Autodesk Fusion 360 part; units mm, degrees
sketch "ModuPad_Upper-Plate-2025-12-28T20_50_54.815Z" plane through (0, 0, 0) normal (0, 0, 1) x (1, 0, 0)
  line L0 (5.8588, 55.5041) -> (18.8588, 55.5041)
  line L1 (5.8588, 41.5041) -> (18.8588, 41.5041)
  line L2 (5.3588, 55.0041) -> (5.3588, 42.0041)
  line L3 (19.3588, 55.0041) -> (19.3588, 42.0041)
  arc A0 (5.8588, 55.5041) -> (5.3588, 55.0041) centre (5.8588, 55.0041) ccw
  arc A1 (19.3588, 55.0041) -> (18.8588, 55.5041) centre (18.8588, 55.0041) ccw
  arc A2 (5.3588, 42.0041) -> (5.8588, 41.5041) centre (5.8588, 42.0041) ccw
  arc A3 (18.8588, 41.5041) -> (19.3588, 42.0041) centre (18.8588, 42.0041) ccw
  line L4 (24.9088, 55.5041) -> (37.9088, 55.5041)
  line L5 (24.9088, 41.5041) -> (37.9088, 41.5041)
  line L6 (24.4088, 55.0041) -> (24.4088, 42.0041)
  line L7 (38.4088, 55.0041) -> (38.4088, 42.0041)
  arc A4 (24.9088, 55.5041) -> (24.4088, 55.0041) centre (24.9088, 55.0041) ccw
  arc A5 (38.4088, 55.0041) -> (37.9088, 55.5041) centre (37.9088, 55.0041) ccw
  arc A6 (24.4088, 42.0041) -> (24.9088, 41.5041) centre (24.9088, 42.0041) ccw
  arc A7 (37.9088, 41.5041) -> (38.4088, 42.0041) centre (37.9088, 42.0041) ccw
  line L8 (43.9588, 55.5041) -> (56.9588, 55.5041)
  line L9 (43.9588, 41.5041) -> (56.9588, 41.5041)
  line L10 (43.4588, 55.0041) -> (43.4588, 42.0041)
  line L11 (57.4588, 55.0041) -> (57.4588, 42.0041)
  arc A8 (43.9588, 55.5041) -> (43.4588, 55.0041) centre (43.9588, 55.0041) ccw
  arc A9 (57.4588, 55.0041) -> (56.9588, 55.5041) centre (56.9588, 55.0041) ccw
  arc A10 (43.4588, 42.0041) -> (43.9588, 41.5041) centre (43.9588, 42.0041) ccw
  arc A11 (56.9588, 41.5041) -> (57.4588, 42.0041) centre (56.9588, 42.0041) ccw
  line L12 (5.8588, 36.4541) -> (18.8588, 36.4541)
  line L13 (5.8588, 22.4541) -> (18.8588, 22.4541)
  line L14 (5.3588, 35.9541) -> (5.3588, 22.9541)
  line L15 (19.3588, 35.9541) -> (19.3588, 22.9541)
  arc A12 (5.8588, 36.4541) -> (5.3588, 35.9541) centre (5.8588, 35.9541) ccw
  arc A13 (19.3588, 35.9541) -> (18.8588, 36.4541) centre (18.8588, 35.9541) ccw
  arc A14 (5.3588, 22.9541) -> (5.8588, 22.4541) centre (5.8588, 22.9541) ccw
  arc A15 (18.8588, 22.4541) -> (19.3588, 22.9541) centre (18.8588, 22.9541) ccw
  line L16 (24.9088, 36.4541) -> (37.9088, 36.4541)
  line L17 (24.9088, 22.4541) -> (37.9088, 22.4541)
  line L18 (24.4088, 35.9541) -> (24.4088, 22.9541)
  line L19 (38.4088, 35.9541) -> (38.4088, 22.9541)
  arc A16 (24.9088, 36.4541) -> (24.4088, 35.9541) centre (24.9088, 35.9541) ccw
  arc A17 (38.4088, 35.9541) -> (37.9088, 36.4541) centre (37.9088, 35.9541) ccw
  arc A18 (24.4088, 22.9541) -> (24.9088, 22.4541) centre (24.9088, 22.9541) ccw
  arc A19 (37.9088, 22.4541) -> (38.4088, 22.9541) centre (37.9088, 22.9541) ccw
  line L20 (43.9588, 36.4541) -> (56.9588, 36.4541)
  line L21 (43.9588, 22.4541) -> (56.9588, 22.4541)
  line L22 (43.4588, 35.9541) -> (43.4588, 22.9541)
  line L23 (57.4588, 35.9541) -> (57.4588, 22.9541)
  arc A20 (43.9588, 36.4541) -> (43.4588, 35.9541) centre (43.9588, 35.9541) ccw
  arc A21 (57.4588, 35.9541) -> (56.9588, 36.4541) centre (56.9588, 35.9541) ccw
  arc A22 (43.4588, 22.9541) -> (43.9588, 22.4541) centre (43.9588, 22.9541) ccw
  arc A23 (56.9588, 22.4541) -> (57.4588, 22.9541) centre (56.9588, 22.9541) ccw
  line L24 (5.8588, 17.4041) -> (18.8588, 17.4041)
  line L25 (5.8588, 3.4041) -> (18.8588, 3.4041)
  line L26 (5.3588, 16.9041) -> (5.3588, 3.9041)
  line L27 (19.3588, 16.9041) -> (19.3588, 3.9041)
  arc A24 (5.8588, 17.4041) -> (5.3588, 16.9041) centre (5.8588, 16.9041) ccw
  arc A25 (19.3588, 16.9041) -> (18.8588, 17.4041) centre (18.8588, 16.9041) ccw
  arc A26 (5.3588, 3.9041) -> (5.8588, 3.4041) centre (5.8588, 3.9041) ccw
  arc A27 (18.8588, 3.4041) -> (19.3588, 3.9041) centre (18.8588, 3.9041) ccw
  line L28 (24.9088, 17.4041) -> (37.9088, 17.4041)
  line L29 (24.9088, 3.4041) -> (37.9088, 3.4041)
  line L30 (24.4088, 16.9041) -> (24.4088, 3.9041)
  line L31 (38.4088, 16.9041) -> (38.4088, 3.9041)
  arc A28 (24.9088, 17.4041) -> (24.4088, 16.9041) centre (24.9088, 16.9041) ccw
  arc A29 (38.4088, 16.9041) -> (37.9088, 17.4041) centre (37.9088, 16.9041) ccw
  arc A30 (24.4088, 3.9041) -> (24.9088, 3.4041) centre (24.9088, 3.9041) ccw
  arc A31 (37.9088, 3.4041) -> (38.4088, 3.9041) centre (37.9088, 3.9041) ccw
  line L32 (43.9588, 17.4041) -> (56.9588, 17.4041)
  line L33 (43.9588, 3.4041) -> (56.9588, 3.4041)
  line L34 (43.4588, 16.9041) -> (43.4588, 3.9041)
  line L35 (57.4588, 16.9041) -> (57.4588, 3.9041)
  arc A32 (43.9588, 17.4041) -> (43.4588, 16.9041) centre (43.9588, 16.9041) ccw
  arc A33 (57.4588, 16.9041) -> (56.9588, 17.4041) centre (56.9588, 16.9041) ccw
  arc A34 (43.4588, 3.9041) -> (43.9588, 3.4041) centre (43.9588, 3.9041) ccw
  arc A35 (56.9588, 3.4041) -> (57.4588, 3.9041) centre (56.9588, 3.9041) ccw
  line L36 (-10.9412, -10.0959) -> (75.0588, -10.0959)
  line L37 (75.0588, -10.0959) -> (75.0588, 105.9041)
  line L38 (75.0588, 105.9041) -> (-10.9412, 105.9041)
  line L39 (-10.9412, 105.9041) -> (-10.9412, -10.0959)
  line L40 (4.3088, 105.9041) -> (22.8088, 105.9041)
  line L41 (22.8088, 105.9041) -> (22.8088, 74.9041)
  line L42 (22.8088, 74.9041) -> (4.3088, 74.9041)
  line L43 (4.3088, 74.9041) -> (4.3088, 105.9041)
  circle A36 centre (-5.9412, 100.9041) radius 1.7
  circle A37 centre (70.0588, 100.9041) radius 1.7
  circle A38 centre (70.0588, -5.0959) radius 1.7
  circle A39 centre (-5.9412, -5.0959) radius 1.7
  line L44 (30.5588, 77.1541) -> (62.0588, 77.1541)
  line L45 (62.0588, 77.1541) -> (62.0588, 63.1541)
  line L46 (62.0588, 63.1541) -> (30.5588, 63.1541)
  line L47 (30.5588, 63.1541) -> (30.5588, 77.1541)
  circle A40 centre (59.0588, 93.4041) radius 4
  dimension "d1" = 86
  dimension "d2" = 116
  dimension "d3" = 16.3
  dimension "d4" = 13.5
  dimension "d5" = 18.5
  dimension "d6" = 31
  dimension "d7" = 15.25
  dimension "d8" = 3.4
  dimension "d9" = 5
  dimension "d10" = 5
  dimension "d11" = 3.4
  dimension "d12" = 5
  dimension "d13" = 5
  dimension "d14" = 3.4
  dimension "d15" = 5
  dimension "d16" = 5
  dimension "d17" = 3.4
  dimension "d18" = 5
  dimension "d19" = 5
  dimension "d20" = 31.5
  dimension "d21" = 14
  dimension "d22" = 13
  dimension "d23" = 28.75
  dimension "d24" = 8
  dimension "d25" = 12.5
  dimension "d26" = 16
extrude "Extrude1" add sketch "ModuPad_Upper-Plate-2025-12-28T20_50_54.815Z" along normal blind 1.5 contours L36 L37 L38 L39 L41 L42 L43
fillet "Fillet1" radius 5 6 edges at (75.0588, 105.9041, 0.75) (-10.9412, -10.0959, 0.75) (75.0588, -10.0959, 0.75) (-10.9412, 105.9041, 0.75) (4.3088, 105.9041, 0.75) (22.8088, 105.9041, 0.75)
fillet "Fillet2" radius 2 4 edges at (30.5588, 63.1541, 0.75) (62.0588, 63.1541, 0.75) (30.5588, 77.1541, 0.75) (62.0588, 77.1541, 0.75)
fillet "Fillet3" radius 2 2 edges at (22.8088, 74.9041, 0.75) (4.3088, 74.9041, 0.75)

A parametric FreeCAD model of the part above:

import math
import FreeCAD as App
import Part
import Sketcher
Q = App.Units.Quantity


def edges_at(feature, points):
    """Names of the edges that pass closest to the given points."""
    edges = feature.Shape.Edges
    near = lambda p: min(range(len(edges)), key=lambda i: edges[i].distToShape(Part.Vertex(*p))[0])
    return sorted({f"Edge{near(p) + 1}" for p in points})

doc = App.newDocument("Part")
body = doc.addObject("PartDesign::Body", "Body")

sketch1 = body.newObject("Sketcher::SketchObject", "Sketch")
sketch1.AttachmentSupport = (doc.getObject("XY_Plane"), [""])
sketch1.MapMode = "FlatFace"
sketch1.addGeometry([
    Part.LineSegment(App.Vector(-10.9412, 105.9041, 0), App.Vector(-10.9412, -10.0959, 0)),
    Part.LineSegment(App.Vector(-10.9412, -10.0959, 0), App.Vector(75.0588, -10.0959, 0)),
    Part.LineSegment(App.Vector(75.0588, -10.0959, 0), App.Vector(75.0588, 105.9041, 0)),
    Part.LineSegment(App.Vector(75.0588, 105.9041, 0), App.Vector(22.8088, 105.9041, 0)),
    Part.LineSegment(App.Vector(22.8088, 105.9041, 0), App.Vector(22.8088, 74.9041, 0)),
    Part.LineSegment(App.Vector(22.8088, 74.9041, 0), App.Vector(4.3088, 74.9041, 0)),
    Part.LineSegment(App.Vector(4.3088, 74.9041, 0), App.Vector(4.3088, 105.9041, 0)),
    Part.LineSegment(App.Vector(4.3088, 105.9041, 0), App.Vector(-10.9412, 105.9041, 0)),
    Part.Circle(App.Vector(-5.9412, -5.0959, 0), App.Vector(0, 0, 1), 1.7),
    Part.ArcOfCircle(Part.Circle(App.Vector(5.8588, 16.9041, 0), App.Vector(0, 0, 1), 0.5), math.radians(90), math.radians(180)),
    Part.LineSegment(App.Vector(5.8588, 17.4041, 0), App.Vector(18.8588, 17.4041, 0)),
    Part.ArcOfCircle(Part.Circle(App.Vector(18.8588, 16.9041, 0), App.Vector(0, 0, 1), 0.5), math.radians(0), math.radians(90)),
    Part.LineSegment(App.Vector(19.3588, 16.9041, 0), App.Vector(19.3588, 3.9041, 0)),
    Part.ArcOfCircle(Part.Circle(App.Vector(18.8588, 3.9041, 0), App.Vector(0, 0, 1), 0.5), math.radians(-90), math.radians(0)),
    Part.LineSegment(App.Vector(18.8588, 3.4041, 0), App.Vector(5.8588, 3.4041, 0)),
    Part.ArcOfCircle(Part.Circle(App.Vector(5.8588, 3.9041, 0), App.Vector(0, 0, 1), 0.5), math.radians(180), math.radians(270)),
    Part.LineSegment(App.Vector(5.3588, 3.9041, 0), App.Vector(5.3588, 16.9041, 0)),
    Part.ArcOfCircle(Part.Circle(App.Vector(24.9088, 16.9041, 0), App.Vector(0, 0, 1), 0.5), math.radians(90), math.radians(180)),
    Part.LineSegment(App.Vector(24.9088, 17.4041, 0), App.Vector(37.9088, 17.4041, 0)),
    Part.ArcOfCircle(Part.Circle(App.Vector(37.9088, 16.9041, 0), App.Vector(0, 0, 1), 0.5), math.radians(0), math.radians(90)),
    Part.LineSegment(App.Vector(38.4088, 16.9041, 0), App.Vector(38.4088, 3.9041, 0)),
    Part.ArcOfCircle(Part.Circle(App.Vector(37.9088, 3.9041, 0), App.Vector(0, 0, 1), 0.5), math.radians(-90), math.radians(0)),
    Part.LineSegment(App.Vector(37.9088, 3.4041, 0), App.Vector(24.9088, 3.4041, 0)),
    Part.ArcOfCircle(Part.Circle(App.Vector(24.9088, 3.9041, 0), App.Vector(0, 0, 1), 0.5), math.radians(180), math.radians(270)),
    Part.LineSegment(App.Vector(24.4088, 3.9041, 0), App.Vector(24.4088, 16.9041, 0)),
    Part.ArcOfCircle(Part.Circle(App.Vector(5.8588, 35.9541, 0), App.Vector(0, 0, 1), 0.5), math.radians(90), math.radians(180)),
    Part.LineSegment(App.Vector(5.8588, 36.4541, 0), App.Vector(18.8588, 36.4541, 0)),
    Part.ArcOfCircle(Part.Circle(App.Vector(18.8588, 35.9541, 0), App.Vector(0, 0, 1), 0.5), math.radians(0), math.radians(90)),
    Part.LineSegment(App.Vector(19.3588, 35.9541, 0), App.Vector(19.3588, 22.9541, 0)),
    Part.ArcOfCircle(Part.Circle(App.Vector(18.8588, 22.9541, 0), App.Vector(0, 0, 1), 0.5), math.radians(-90), math.radians(0)),
    Part.LineSegment(App.Vector(18.8588, 22.4541, 0), App.Vector(5.8588, 22.4541, 0)),
    Part.ArcOfCircle(Part.Circle(App.Vector(5.8588, 22.9541, 0), App.Vector(0, 0, 1), 0.5), math.radians(180), math.radians(270)),
    Part.LineSegment(App.Vector(5.3588, 22.9541, 0), App.Vector(5.3588, 35.9541, 0)),
    Part.ArcOfCircle(Part.Circle(App.Vector(24.9088, 35.9541, 0), App.Vector(0, 0, 1), 0.5), math.radians(90), math.radians(180)),
    Part.LineSegment(App.Vector(24.9088, 36.4541, 0), App.Vector(37.9088, 36.4541, 0)),
    Part.ArcOfCircle(Part.Circle(App.Vector(37.9088, 35.9541, 0), App.Vector(0, 0, 1), 0.5), math.radians(0), math.radians(90)),
    Part.LineSegment(App.Vector(38.4088, 35.9541, 0), App.Vector(38.4088, 22.9541, 0)),
    Part.ArcOfCircle(Part.Circle(App.Vector(37.9088, 22.9541, 0), App.Vector(0, 0, 1), 0.5), math.radians(-90), math.radians(0)),
    Part.LineSegment(App.Vector(37.9088, 22.4541, 0), App.Vector(24.9088, 22.4541, 0)),
    Part.ArcOfCircle(Part.Circle(App.Vector(24.9088, 22.9541, 0), App.Vector(0, 0, 1), 0.5), math.radians(180), math.radians(270)),
    Part.LineSegment(App.Vector(24.4088, 22.9541, 0), App.Vector(24.4088, 35.9541, 0)),
    Part.ArcOfCircle(Part.Circle(App.Vector(43.9588, 16.9041, 0), App.Vector(0, 0, 1), 0.5), math.radians(90), math.radians(180)),
    Part.LineSegment(App.Vector(43.9588, 17.4041, 0), App.Vector(56.9588, 17.4041, 0)),
    Part.ArcOfCircle(Part.Circle(App.Vector(56.9588, 16.9041, 0), App.Vector(0, 0, 1), 0.5), math.radians(0), math.radians(90)),
    Part.LineSegment(App.Vector(57.4588, 16.9041, 0), App.Vector(57.4588, 3.9041, 0)),
    Part.ArcOfCircle(Part.Circle(App.Vector(56.9588, 3.9041, 0), App.Vector(0, 0, 1), 0.5), math.radians(-90), math.radians(0)),
    Part.LineSegment(App.Vector(56.9588, 3.4041, 0), App.Vector(43.9588, 3.4041, 0)),
    Part.ArcOfCircle(Part.Circle(App.Vector(43.9588, 3.9041, 0), App.Vector(0, 0, 1), 0.5), math.radians(180), math.radians(270)),
    Part.LineSegment(App.Vector(43.4588, 3.9041, 0), App.Vector(43.4588, 16.9041, 0)),
    Part.Circle(App.Vector(70.0588, -5.0959, 0), App.Vector(0, 0, 1), 1.7),
    Part.ArcOfCircle(Part.Circle(App.Vector(43.9588, 35.9541, 0), App.Vector(0, 0, 1), 0.5), math.radians(90), math.radians(180)),
    Part.LineSegment(App.Vector(43.9588, 36.4541, 0), App.Vector(56.9588, 36.4541, 0)),
    Part.ArcOfCircle(Part.Circle(App.Vector(56.9588, 35.9541, 0), App.Vector(0, 0, 1), 0.5), math.radians(0), math.radians(90)),
    Part.LineSegment(App.Vector(57.4588, 35.9541, 0), App.Vector(57.4588, 22.9541, 0)),
    Part.ArcOfCircle(Part.Circle(App.Vector(56.9588, 22.9541, 0), App.Vector(0, 0, 1), 0.5), math.radians(-90), math.radians(0)),
    Part.LineSegment(App.Vector(56.9588, 22.4541, 0), App.Vector(43.9588, 22.4541, 0)),
    Part.ArcOfCircle(Part.Circle(App.Vector(43.9588, 22.9541, 0), App.Vector(0, 0, 1), 0.5), math.radians(180), math.radians(270)),
    Part.LineSegment(App.Vector(43.4588, 22.9541, 0), App.Vector(43.4588, 35.9541, 0)),
    Part.ArcOfCircle(Part.Circle(App.Vector(5.8588, 55.0041, 0), App.Vector(0, 0, 1), 0.5), math.radians(90), math.radians(180)),
    Part.LineSegment(App.Vector(5.8588, 55.5041, 0), App.Vector(18.8588, 55.5041, 0)),
    Part.ArcOfCircle(Part.Circle(App.Vector(18.8588, 55.0041, 0), App.Vector(0, 0, 1), 0.5), math.radians(0), math.radians(90)),
    Part.LineSegment(App.Vector(19.3588, 55.0041, 0), App.Vector(19.3588, 42.0041, 0)),
    Part.ArcOfCircle(Part.Circle(App.Vector(18.8588, 42.0041, 0), App.Vector(0, 0, 1), 0.5), math.radians(-90), math.radians(0)),
    Part.LineSegment(App.Vector(18.8588, 41.5041, 0), App.Vector(5.8588, 41.5041, 0)),
    Part.ArcOfCircle(Part.Circle(App.Vector(5.8588, 42.0041, 0), App.Vector(0, 0, 1), 0.5), math.radians(180), math.radians(270)),
    Part.LineSegment(App.Vector(5.3588, 42.0041, 0), App.Vector(5.3588, 55.0041, 0)),
    Part.ArcOfCircle(Part.Circle(App.Vector(24.9088, 55.0041, 0), App.Vector(0, 0, 1), 0.5), math.radians(90), math.radians(180)),
    Part.LineSegment(App.Vector(24.9088, 55.5041, 0), App.Vector(37.9088, 55.5041, 0)),
    Part.ArcOfCircle(Part.Circle(App.Vector(37.9088, 55.0041, 0), App.Vector(0, 0, 1), 0.5), math.radians(0), math.radians(90)),
    Part.LineSegment(App.Vector(38.4088, 55.0041, 0), App.Vector(38.4088, 42.0041, 0)),
    Part.ArcOfCircle(Part.Circle(App.Vector(37.9088, 42.0041, 0), App.Vector(0, 0, 1), 0.5), math.radians(-90), math.radians(0)),
    Part.LineSegment(App.Vector(37.9088, 41.5041, 0), App.Vector(24.9088, 41.5041, 0)),
    Part.ArcOfCircle(Part.Circle(App.Vector(24.9088, 42.0041, 0), App.Vector(0, 0, 1), 0.5), math.radians(180), math.radians(270)),
    Part.LineSegment(App.Vector(24.4088, 42.0041, 0), App.Vector(24.4088, 55.0041, 0)),
    Part.Circle(App.Vector(-5.9412, 100.9041, 0), App.Vector(0, 0, 1), 1.7),
    Part.ArcOfCircle(Part.Circle(App.Vector(43.9588, 55.0041, 0), App.Vector(0, 0, 1), 0.5), math.radians(90), math.radians(180)),
    Part.LineSegment(App.Vector(43.9588, 55.5041, 0), App.Vector(56.9588, 55.5041, 0)),
    Part.ArcOfCircle(Part.Circle(App.Vector(56.9588, 55.0041, 0), App.Vector(0, 0, 1), 0.5), math.radians(0), math.radians(90)),
    Part.LineSegment(App.Vector(57.4588, 55.0041, 0), App.Vector(57.4588, 42.0041, 0)),
    Part.ArcOfCircle(Part.Circle(App.Vector(56.9588, 42.0041, 0), App.Vector(0, 0, 1), 0.5), math.radians(-90), math.radians(0)),
    Part.LineSegment(App.Vector(56.9588, 41.5041, 0), App.Vector(43.9588, 41.5041, 0)),
    Part.ArcOfCircle(Part.Circle(App.Vector(43.9588, 42.0041, 0), App.Vector(0, 0, 1), 0.5), math.radians(180), math.radians(270)),
    Part.LineSegment(App.Vector(43.4588, 42.0041, 0), App.Vector(43.4588, 55.0041, 0)),
    Part.LineSegment(App.Vector(30.5588, 63.1541, 0), App.Vector(30.5588, 77.1541, 0)),
    Part.LineSegment(App.Vector(30.5588, 77.1541, 0), App.Vector(62.0588, 77.1541, 0)),
    Part.LineSegment(App.Vector(62.0588, 77.1541, 0), App.Vector(62.0588, 63.1541, 0)),
    Part.LineSegment(App.Vector(62.0588, 63.1541, 0), App.Vector(30.5588, 63.1541, 0)),
    Part.Circle(App.Vector(59.0588, 93.4041, 0), App.Vector(0, 0, 1), 4),
    Part.Circle(App.Vector(70.0588, 100.9041, 0), App.Vector(0, 0, 1), 1.7),
], False)
sketch1.addConstraint([
    Sketcher.Constraint("Coincident", 0, 2, 1, 1),
    Sketcher.Constraint("Coincident", 1, 2, 2, 1),
    Sketcher.Constraint("Coincident", 2, 2, 3, 1),
    Sketcher.Constraint("Coincident", 3, 2, 4, 1),
    Sketcher.Constraint("Coincident", 4, 2, 5, 1),
    Sketcher.Constraint("Coincident", 5, 2, 6, 1),
    Sketcher.Constraint("Coincident", 6, 2, 7, 1),
    Sketcher.Constraint("Coincident", 7, 2, 0, 1),
    Sketcher.Constraint("Tangent", 9, 1, 10, 1),
    Sketcher.Constraint("Tangent", 10, 2, 11, 2),
    Sketcher.Constraint("Tangent", 11, 1, 12, 1),
    Sketcher.Constraint("Tangent", 12, 2, 13, 2),
    Sketcher.Constraint("Tangent", 13, 1, 14, 1),
    Sketcher.Constraint("Tangent", 14, 2, 15, 2),
    Sketcher.Constraint("Tangent", 15, 1, 16, 1),
    Sketcher.Constraint("Tangent", 16, 2, 9, 2),
    Sketcher.Constraint("Tangent", 17, 1, 18, 1),
    Sketcher.Constraint("Tangent", 18, 2, 19, 2),
    Sketcher.Constraint("Tangent", 19, 1, 20, 1),
    Sketcher.Constraint("Tangent", 20, 2, 21, 2),
    Sketcher.Constraint("Tangent", 21, 1, 22, 1),
    Sketcher.Constraint("Tangent", 22, 2, 23, 2),
    Sketcher.Constraint("Tangent", 23, 1, 24, 1),
    Sketcher.Constraint("Tangent", 24, 2, 17, 2),
    Sketcher.Constraint("Tangent", 25, 1, 26, 1),
    Sketcher.Constraint("Tangent", 26, 2, 27, 2),
    Sketcher.Constraint("Tangent", 27, 1, 28, 1),
    Sketcher.Constraint("Tangent", 28, 2, 29, 2),
    Sketcher.Constraint("Tangent", 29, 1, 30, 1),
    Sketcher.Constraint("Tangent", 30, 2, 31, 2),
    Sketcher.Constraint("Tangent", 31, 1, 32, 1),
    Sketcher.Constraint("Tangent", 32, 2, 25, 2),
    Sketcher.Constraint("Tangent", 33, 1, 34, 1),
    Sketcher.Constraint("Tangent", 34, 2, 35, 2),
    Sketcher.Constraint("Tangent", 35, 1, 36, 1),
    Sketcher.Constraint("Tangent", 36, 2, 37, 2),
    Sketcher.Constraint("Tangent", 37, 1, 38, 1),
    Sketcher.Constraint("Tangent", 38, 2, 39, 2),
    Sketcher.Constraint("Tangent", 39, 1, 40, 1),
    Sketcher.Constraint("Tangent", 40, 2, 33, 2),
    Sketcher.Constraint("Tangent", 41, 1, 42, 1),
    Sketcher.Constraint("Tangent", 42, 2, 43, 2),
    Sketcher.Constraint("Tangent", 43, 1, 44, 1),
    Sketcher.Constraint("Tangent", 44, 2, 45, 2),
    Sketcher.Constraint("Tangent", 45, 1, 46, 1),
    Sketcher.Constraint("Tangent", 46, 2, 47, 2),
    Sketcher.Constraint("Tangent", 47, 1, 48, 1),
    Sketcher.Constraint("Tangent", 48, 2, 41, 2),
    Sketcher.Constraint("Tangent", 50, 1, 51, 1),
    Sketcher.Constraint("Tangent", 51, 2, 52, 2),
    Sketcher.Constraint("Tangent", 52, 1, 53, 1),
    Sketcher.Constraint("Tangent", 53, 2, 54, 2),
    Sketcher.Constraint("Tangent", 54, 1, 55, 1),
    Sketcher.Constraint("Tangent", 55, 2, 56, 2),
    Sketcher.Constraint("Tangent", 56, 1, 57, 1),
    Sketcher.Constraint("Tangent", 57, 2, 50, 2),
    Sketcher.Constraint("Tangent", 58, 1, 59, 1),
    Sketcher.Constraint("Tangent", 59, 2, 60, 2),
    Sketcher.Constraint("Tangent", 60, 1, 61, 1),
    Sketcher.Constraint("Tangent", 61, 2, 62, 2),
    Sketcher.Constraint("Tangent", 62, 1, 63, 1),
    Sketcher.Constraint("Tangent", 63, 2, 64, 2),
    Sketcher.Constraint("Tangent", 64, 1, 65, 1),
    Sketcher.Constraint("Tangent", 65, 2, 58, 2),
    Sketcher.Constraint("Tangent", 66, 1, 67, 1),
    Sketcher.Constraint("Tangent", 67, 2, 68, 2),
    Sketcher.Constraint("Tangent", 68, 1, 69, 1),
    Sketcher.Constraint("Tangent", 69, 2, 70, 2),
    Sketcher.Constraint("Tangent", 70, 1, 71, 1),
    Sketcher.Constraint("Tangent", 71, 2, 72, 2),
    Sketcher.Constraint("Tangent", 72, 1, 73, 1),
    Sketcher.Constraint("Tangent", 73, 2, 66, 2),
    Sketcher.Constraint("Tangent", 75, 1, 76, 1),
    Sketcher.Constraint("Tangent", 76, 2, 77, 2),
    Sketcher.Constraint("Tangent", 77, 1, 78, 1),
    Sketcher.Constraint("Tangent", 78, 2, 79, 2),
    Sketcher.Constraint("Tangent", 79, 1, 80, 1),
    Sketcher.Constraint("Tangent", 80, 2, 81, 2),
    Sketcher.Constraint("Tangent", 81, 1, 82, 1),
    Sketcher.Constraint("Tangent", 82, 2, 75, 2),
    Sketcher.Constraint("Coincident", 83, 2, 84, 1),
    Sketcher.Constraint("Coincident", 84, 2, 85, 1),
    Sketcher.Constraint("Coincident", 85, 2, 86, 1),
    Sketcher.Constraint("Coincident", 86, 2, 83, 1),
    Sketcher.Constraint("Vertical", 0),
    Sketcher.Constraint("Horizontal", 1),
    Sketcher.Constraint("Vertical", 2),
    Sketcher.Constraint("Horizontal", 3),
    Sketcher.Constraint("Vertical", 4),
    Sketcher.Constraint("Horizontal", 5),
    Sketcher.Constraint("Vertical", 6),
    Sketcher.Constraint("Horizontal", 7),
    Sketcher.Constraint("Horizontal", 10),
    Sketcher.Constraint("Vertical", 12),
    Sketcher.Constraint("Horizontal", 14),
    Sketcher.Constraint("Vertical", 16),
    Sketcher.Constraint("Horizontal", 18),
    Sketcher.Constraint("Vertical", 20),
    Sketcher.Constraint("Horizontal", 22),
    Sketcher.Constraint("Vertical", 24),
    Sketcher.Constraint("Horizontal", 26),
    Sketcher.Constraint("Vertical", 28),
    Sketcher.Constraint("Horizontal", 30),
    Sketcher.Constraint("Vertical", 32),
    Sketcher.Constraint("Horizontal", 34),
    Sketcher.Constraint("Vertical", 36),
    Sketcher.Constraint("Horizontal", 38),
    Sketcher.Constraint("Vertical", 40),
    Sketcher.Constraint("Horizontal", 42),
    Sketcher.Constraint("Vertical", 44),
    Sketcher.Constraint("Horizontal", 46),
    Sketcher.Constraint("Vertical", 48),
    Sketcher.Constraint("Horizontal", 51),
    Sketcher.Constraint("Vertical", 53),
    Sketcher.Constraint("Horizontal", 55),
    Sketcher.Constraint("Vertical", 57),
    Sketcher.Constraint("Horizontal", 59),
    Sketcher.Constraint("Vertical", 61),
    Sketcher.Constraint("Horizontal", 63),
    Sketcher.Constraint("Vertical", 65),
    Sketcher.Constraint("Horizontal", 67),
    Sketcher.Constraint("Vertical", 69),
    Sketcher.Constraint("Horizontal", 71),
    Sketcher.Constraint("Vertical", 73),
    Sketcher.Constraint("Horizontal", 76),
    Sketcher.Constraint("Vertical", 78),
    Sketcher.Constraint("Horizontal", 80),
    Sketcher.Constraint("Vertical", 82),
    Sketcher.Constraint("Vertical", 83),
    Sketcher.Constraint("Horizontal", 84),
    Sketcher.Constraint("Vertical", 85),
    Sketcher.Constraint("Horizontal", 86),
    Sketcher.Constraint("Equal", 9, 11),
    Sketcher.Constraint("Equal", 11, 13),
    Sketcher.Constraint("Equal", 13, 15),
    Sketcher.Constraint("Equal", 15, 17),
    Sketcher.Constraint("Equal", 17, 19),
    Sketcher.Constraint("Equal", 19, 21),
    Sketcher.Constraint("Equal", 21, 23),
    Sketcher.Constraint("Equal", 23, 25),
    Sketcher.Constraint("Equal", 25, 27),
    Sketcher.Constraint("Equal", 27, 29),
    Sketcher.Constraint("Equal", 29, 31),
    Sketcher.Constraint("Equal", 31, 33),
    Sketcher.Constraint("Equal", 33, 35),
    Sketcher.Constraint("Equal", 35, 37),
    Sketcher.Constraint("Equal", 37, 39),
    Sketcher.Constraint("Equal", 39, 41),
    Sketcher.Constraint("Equal", 41, 43),
    Sketcher.Constraint("Equal", 43, 45),
    Sketcher.Constraint("Equal", 45, 47),
    Sketcher.Constraint("Equal", 8, 49),
    Sketcher.Constraint("Equal", 47, 50),
    Sketcher.Constraint("Equal", 50, 52),
    Sketcher.Constraint("Equal", 52, 54),
    Sketcher.Constraint("Equal", 54, 56),
    Sketcher.Constraint("Equal", 56, 58),
    Sketcher.Constraint("Equal", 58, 60),
    Sketcher.Constraint("Equal", 60, 62),
    Sketcher.Constraint("Equal", 62, 64),
    Sketcher.Constraint("Equal", 64, 66),
    Sketcher.Constraint("Equal", 66, 68),
    Sketcher.Constraint("Equal", 68, 70),
    Sketcher.Constraint("Equal", 70, 72),
    Sketcher.Constraint("Equal", 49, 74),
    Sketcher.Constraint("Equal", 72, 75),
    Sketcher.Constraint("Equal", 75, 77),
    Sketcher.Constraint("Equal", 77, 79),
    Sketcher.Constraint("Equal", 79, 81),
    Sketcher.Constraint("Equal", 74, 88),
    Sketcher.Constraint("Horizontal", 11, 3, 17, 3),
    Sketcher.Constraint("Horizontal", 15, 3, 21, 3),
    Sketcher.Constraint("Horizontal", 27, 3, 33, 3),
    Sketcher.Constraint("Horizontal", 31, 3, 37, 3),
    Sketcher.Constraint("Horizontal", 19, 3, 41, 3),
    Sketcher.Constraint("Horizontal", 23, 3, 45, 3),
    Sketcher.Constraint("Horizontal", 8, 3, 49, 3),
    Sketcher.Constraint("Horizontal", 35, 3, 50, 3),
    Sketcher.Constraint("Horizontal", 39, 3, 54, 3),
    Sketcher.Constraint("Horizontal", 60, 3, 66, 3),
    Sketcher.Constraint("Horizontal", 64, 3, 70, 3),
    Sketcher.Constraint("Horizontal", 68, 3, 75, 3),
    Sketcher.Constraint("Horizontal", 72, 3, 79, 3),
    Sketcher.Constraint("Horizontal", 74, 3, 88, 3),
    Sketcher.Constraint("Horizontal", 3, 2, 6, 2),
    Sketcher.Constraint("Vertical", 15, 3, 25, 3),
    Sketcher.Constraint("Vertical", 13, 3, 27, 3),
    Sketcher.Constraint("Vertical", 23, 3, 33, 3),
    Sketcher.Constraint("Vertical", 21, 3, 35, 3),
    Sketcher.Constraint("Vertical", 47, 3, 50, 3),
    Sketcher.Constraint("Vertical", 45, 3, 52, 3),
    Sketcher.Constraint("Vertical", 31, 3, 58, 3),
    Sketcher.Constraint("Vertical", 29, 3, 60, 3),
    Sketcher.Constraint("Vertical", 39, 3, 66, 3),
    Sketcher.Constraint("Vertical", 37, 3, 68, 3),
    Sketcher.Constraint("Vertical", 8, 3, 74, 3),
    Sketcher.Constraint("Vertical", 56, 3, 75, 3),
    Sketcher.Constraint("Vertical", 54, 3, 77, 3),
    Sketcher.Constraint("Vertical", 49, 3, 88, 3),
    Sketcher.Constraint("Equal", 14, 18),
    Sketcher.Constraint("Equal", 38, 42),
    Sketcher.Constraint("Equal", 80, 12),
    Sketcher.Constraint("Equal", 24, 28),
    Sketcher.Constraint("Equal", 57, 61),
    Sketcher.Constraint("Diameter", 87, Q("8 mm")),
    Sketcher.Constraint("Diameter", 8, Q("3.4 mm")),
    Sketcher.Constraint("DistanceX", 1, 1, 1, 2, Q("86 mm")),
    Sketcher.Constraint("DistanceX", 10, 1, 10, 2, Q("13 mm")),
    Sketcher.Constraint("DistanceY", 0, 2, 0, 1, Q("116 mm")),
    Sketcher.Constraint("DistanceY", 4, 2, 4, 1, Q("31 mm")),
    Sketcher.Constraint("DistanceY", 83, 1, 83, 2, Q("14 mm")),
    Sketcher.Constraint("DistanceX", 5, 2, 5, 1, Q("18.5 mm")),
    Sketcher.Constraint("DistanceX", 84, 1, 84, 2, Q("31.5 mm")),
    Sketcher.Constraint("DistanceX", 7, 2, 7, 1, Q("15.25 mm")),
    Sketcher.Constraint("Radius", 9, Q("0.5 mm")),
    Sketcher.Constraint("DistanceY", 8, 3, -1, 1, Q("5.096 mm")),
    Sketcher.Constraint("DistanceY", -1, 1, 9, 3, Q("16.904 mm")),
    Sketcher.Constraint("DistanceY", -1, 1, 25, 3, Q("35.954 mm")),
    Sketcher.Constraint("DistanceY", -1, 1, 58, 3, Q("55.004 mm")),
    Sketcher.Constraint("DistanceY", -1, 1, 74, 3, Q("100.904 mm")),
    Sketcher.Constraint("DistanceY", -1, 1, 87, 3, Q("93.404 mm")),
    Sketcher.Constraint("DistanceY", 0, 2, -1, 1, Q("10.096 mm")),
    Sketcher.Constraint("DistanceY", -1, 1, 83, 2, Q("77.154 mm")),
    Sketcher.Constraint("DistanceX", 8, 3, -1, 1, Q("5.9412 mm")),
    Sketcher.Constraint("DistanceX", -1, 1, 9, 3, Q("5.8588 mm")),
    Sketcher.Constraint("DistanceX", -1, 1, 17, 3, Q("24.9088 mm")),
    Sketcher.Constraint("DistanceX", -1, 1, 41, 3, Q("43.9588 mm")),
    Sketcher.Constraint("DistanceX", -1, 1, 49, 3, Q("70.0588 mm")),
    Sketcher.Constraint("DistanceX", -1, 1, 87, 3, Q("59.0588 mm")),
    Sketcher.Constraint("DistanceX", 0, 2, -1, 1, Q("10.9412 mm")),
    Sketcher.Constraint("DistanceX", -1, 1, 83, 2, Q("30.5588 mm")),
])
pad1 = body.newObject("PartDesign::Pad", "Pad")
pad1.Profile = sketch1
pad1.Length = 1.5
doc.recompute()

fillet = body.newObject("PartDesign::Fillet", "Fillet")
fillet.Base = (pad1, edges_at(pad1, [
    (75.059, 105.904, 0.75),
    (-10.941, -10.096, 0.75),
    (75.059, -10.096, 0.75),
    (-10.941, 105.904, 0.75),
    (4.309, 105.904, 0.75),
    (22.809, 105.904, 0.75),
]))
fillet.Radius = 5
doc.recompute()

fillet2 = body.newObject("PartDesign::Fillet", "Fillet001")
fillet2.Base = (fillet, edges_at(fillet, [
    (30.559, 63.154, 0.75),
    (62.059, 63.154, 0.75),
    (30.559, 77.154, 0.75),
    (62.059, 77.154, 0.75),
]))
fillet2.Radius = 2
doc.recompute()

fillet3 = body.newObject("PartDesign::Fillet", "Fillet002")
fillet3.Base = (fillet2, edges_at(fillet2, [(22.809, 74.904, 0.75), (4.309, 74.904, 0.75)]))
fillet3.Radius = 2

doc.recompute()
